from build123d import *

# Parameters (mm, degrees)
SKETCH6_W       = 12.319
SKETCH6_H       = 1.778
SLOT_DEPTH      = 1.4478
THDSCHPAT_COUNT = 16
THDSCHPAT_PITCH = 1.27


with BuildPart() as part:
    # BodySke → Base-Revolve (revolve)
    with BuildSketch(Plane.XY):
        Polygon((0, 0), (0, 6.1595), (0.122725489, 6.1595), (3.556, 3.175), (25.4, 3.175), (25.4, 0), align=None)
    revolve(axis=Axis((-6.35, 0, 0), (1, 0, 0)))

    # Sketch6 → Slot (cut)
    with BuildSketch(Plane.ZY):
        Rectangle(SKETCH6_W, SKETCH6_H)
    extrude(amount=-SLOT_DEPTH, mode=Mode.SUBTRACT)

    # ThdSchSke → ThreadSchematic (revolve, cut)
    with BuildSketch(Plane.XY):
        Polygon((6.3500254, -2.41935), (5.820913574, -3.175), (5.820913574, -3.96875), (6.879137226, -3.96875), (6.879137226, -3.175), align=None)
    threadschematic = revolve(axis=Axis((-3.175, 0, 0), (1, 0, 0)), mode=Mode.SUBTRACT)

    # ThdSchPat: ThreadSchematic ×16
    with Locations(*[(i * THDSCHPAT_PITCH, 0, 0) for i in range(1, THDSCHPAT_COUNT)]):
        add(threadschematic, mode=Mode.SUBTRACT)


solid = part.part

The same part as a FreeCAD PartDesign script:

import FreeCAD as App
import Part
import Sketcher
from FreeCAD import Vector
Q = App.Units.Quantity


def add_polygon(sketch, points):
    """Adds a closed chain of lines whose ends are joined by coincident constraints."""
    first, n = sketch.GeometryCount, len(points)
    for a, b in zip(points, points[1:] + points[:1]):
        sketch.addGeometry(Part.LineSegment(App.Vector(*a, 0), App.Vector(*b, 0)), False)
    for i in range(n):
        sketch.addConstraint(Sketcher.Constraint("Coincident", first + i, 2, first + (i + 1) % n, 1))

doc = App.newDocument("Part")
body = doc.addObject("PartDesign::Body", "Body")

sketch1 = body.newObject("Sketcher::SketchObject", "Sketch")
sketch1.AttachmentSupport = (doc.getObject("XY_Plane"), [""])
sketch1.MapMode = "FlatFace"
add_polygon(sketch1, [(0, 6.1595), (0, 0), (25.4, 0), (25.4, 3.175), (3.556, 3.175), (0.122725, 6.1595)])
sketch1.addConstraint(Sketcher.Constraint("Vertical", 0))
sketch1.addConstraint(Sketcher.Constraint("Horizontal", 1))
sketch1.addConstraint(Sketcher.Constraint("Vertical", 2))
sketch1.addConstraint(Sketcher.Constraint("Horizontal", 3))
sketch1.addConstraint(Sketcher.Constraint("Horizontal", 5))
sketch1.addConstraint(Sketcher.Constraint("Coincident", 0, 2, -1, 1))
sketch1.addConstraint(Sketcher.Constraint("DistanceX", 1, 1, 1, 2, Q("1 in")))
sketch1.addConstraint(Sketcher.Constraint("Angle", 4, Q("139 deg")))
sketch1.addConstraint(Sketcher.Constraint("DistanceX", 3, 2, 3, 1, Q("0.86 in")))
sketch1.addConstraint(Sketcher.Constraint("DistanceY", 2, 1, 2, 2, Q("0.125 in")))
sketch1.addConstraint(Sketcher.Constraint("DistanceY", 0, 2, 0, 1, Q("0.2425 in")))
revolution = body.newObject("PartDesign::Revolution", "Revolution")
revolution.Profile = sketch1
revolution.ReferenceAxis = (sketch1, ["H_Axis"])
revolution.Angle = 360

sketch2 = body.newObject("Sketcher::SketchObject", "Sketch001")
sketch2.AttachmentSupport = (doc.getObject("YZ_Plane"), [""])
sketch2.MapMode = "FlatFace"
add_polygon(sketch2, [(0.889, -6.1595), (-0.889, -6.1595), (-0.889, 6.1595), (0.889, 6.1595)])
sketch2.addConstraint(Sketcher.Constraint("Horizontal", 0))
sketch2.addConstraint(Sketcher.Constraint("Vertical", 1))
sketch2.addConstraint(Sketcher.Constraint("Horizontal", 2))
sketch2.addConstraint(Sketcher.Constraint("Vertical", 3))
sketch2.addConstraint(Sketcher.Constraint("Symmetric", 0, 2, 2, 2, -1, 1))
sketch2.addConstraint(Sketcher.Constraint("DistanceX", 0, 2, 0, 1, Q("0.07 in")))
sketch2.addConstraint(Sketcher.Constraint("DistanceY", 1, 1, 1, 2, Q("0.485 in")))
pocket1 = body.newObject("PartDesign::Pocket", "Pocket")
pocket1.Profile = sketch2
pocket1.Length = Q("0.057 in")
pocket1.Reversed = True

sketch3 = body.newObject("Sketcher::SketchObject", "Sketch002")
sketch3.AttachmentSupport = (doc.getObject("XY_Plane"), [""])
sketch3.MapMode = "FlatFace"
add_polygon(sketch3, [(6.350025, -2.41935), (5.820914, -3.175), (5.820914, -3.96875), (6.879137, -3.96875), (6.879137, -3.175)])
sketch3.addConstraint(Sketcher.Constraint("Vertical", 1))
sketch3.addConstraint(Sketcher.Constraint("Horizontal", 2))
sketch3.addConstraint(Sketcher.Constraint("Vertical", 3))
sketch3.addConstraint(Sketcher.Constraint("Horizontal", 0, 2, 3, 2))
sketch3.addConstraint(Sketcher.Constraint("Equal", 0, 4))
sketch3.addConstraint(Sketcher.Constraint("Angle", 0, Q("-125 deg")))
sketch3.addConstraint(Sketcher.Constraint("DistanceY", 1, 2, 1, 1, Q("0.03125 in")))
sketch3.addConstraint(Sketcher.Constraint("DistanceY", 0, 2, -1, 1, Q("0.125 in")))
sketch3.addConstraint(Sketcher.Constraint("DistanceY", 1, 2, 4, 2, Q("0.061 in")))
sketch3.addConstraint(Sketcher.Constraint("DistanceX", -1, 1, 0, 2, 5.820914))
groove = body.newObject("PartDesign::Groove", "Groove")
groove.Profile = sketch3
groove.ReferenceAxis = (sketch3, ["H_Axis"])
groove.Angle = 360
doc.recompute()

linearpattern = body.newObject("PartDesign::LinearPattern", "LinearPattern")
linearpattern.Originals = [groove]
linearpattern.Direction = (doc.getObject("X_Axis"), [""])
linearpattern.Mode = "offset"
linearpattern.Offset = Q("0.05 in")
linearpattern.Occurrences = 16
body.Tip = linearpattern

doc.recompute()
